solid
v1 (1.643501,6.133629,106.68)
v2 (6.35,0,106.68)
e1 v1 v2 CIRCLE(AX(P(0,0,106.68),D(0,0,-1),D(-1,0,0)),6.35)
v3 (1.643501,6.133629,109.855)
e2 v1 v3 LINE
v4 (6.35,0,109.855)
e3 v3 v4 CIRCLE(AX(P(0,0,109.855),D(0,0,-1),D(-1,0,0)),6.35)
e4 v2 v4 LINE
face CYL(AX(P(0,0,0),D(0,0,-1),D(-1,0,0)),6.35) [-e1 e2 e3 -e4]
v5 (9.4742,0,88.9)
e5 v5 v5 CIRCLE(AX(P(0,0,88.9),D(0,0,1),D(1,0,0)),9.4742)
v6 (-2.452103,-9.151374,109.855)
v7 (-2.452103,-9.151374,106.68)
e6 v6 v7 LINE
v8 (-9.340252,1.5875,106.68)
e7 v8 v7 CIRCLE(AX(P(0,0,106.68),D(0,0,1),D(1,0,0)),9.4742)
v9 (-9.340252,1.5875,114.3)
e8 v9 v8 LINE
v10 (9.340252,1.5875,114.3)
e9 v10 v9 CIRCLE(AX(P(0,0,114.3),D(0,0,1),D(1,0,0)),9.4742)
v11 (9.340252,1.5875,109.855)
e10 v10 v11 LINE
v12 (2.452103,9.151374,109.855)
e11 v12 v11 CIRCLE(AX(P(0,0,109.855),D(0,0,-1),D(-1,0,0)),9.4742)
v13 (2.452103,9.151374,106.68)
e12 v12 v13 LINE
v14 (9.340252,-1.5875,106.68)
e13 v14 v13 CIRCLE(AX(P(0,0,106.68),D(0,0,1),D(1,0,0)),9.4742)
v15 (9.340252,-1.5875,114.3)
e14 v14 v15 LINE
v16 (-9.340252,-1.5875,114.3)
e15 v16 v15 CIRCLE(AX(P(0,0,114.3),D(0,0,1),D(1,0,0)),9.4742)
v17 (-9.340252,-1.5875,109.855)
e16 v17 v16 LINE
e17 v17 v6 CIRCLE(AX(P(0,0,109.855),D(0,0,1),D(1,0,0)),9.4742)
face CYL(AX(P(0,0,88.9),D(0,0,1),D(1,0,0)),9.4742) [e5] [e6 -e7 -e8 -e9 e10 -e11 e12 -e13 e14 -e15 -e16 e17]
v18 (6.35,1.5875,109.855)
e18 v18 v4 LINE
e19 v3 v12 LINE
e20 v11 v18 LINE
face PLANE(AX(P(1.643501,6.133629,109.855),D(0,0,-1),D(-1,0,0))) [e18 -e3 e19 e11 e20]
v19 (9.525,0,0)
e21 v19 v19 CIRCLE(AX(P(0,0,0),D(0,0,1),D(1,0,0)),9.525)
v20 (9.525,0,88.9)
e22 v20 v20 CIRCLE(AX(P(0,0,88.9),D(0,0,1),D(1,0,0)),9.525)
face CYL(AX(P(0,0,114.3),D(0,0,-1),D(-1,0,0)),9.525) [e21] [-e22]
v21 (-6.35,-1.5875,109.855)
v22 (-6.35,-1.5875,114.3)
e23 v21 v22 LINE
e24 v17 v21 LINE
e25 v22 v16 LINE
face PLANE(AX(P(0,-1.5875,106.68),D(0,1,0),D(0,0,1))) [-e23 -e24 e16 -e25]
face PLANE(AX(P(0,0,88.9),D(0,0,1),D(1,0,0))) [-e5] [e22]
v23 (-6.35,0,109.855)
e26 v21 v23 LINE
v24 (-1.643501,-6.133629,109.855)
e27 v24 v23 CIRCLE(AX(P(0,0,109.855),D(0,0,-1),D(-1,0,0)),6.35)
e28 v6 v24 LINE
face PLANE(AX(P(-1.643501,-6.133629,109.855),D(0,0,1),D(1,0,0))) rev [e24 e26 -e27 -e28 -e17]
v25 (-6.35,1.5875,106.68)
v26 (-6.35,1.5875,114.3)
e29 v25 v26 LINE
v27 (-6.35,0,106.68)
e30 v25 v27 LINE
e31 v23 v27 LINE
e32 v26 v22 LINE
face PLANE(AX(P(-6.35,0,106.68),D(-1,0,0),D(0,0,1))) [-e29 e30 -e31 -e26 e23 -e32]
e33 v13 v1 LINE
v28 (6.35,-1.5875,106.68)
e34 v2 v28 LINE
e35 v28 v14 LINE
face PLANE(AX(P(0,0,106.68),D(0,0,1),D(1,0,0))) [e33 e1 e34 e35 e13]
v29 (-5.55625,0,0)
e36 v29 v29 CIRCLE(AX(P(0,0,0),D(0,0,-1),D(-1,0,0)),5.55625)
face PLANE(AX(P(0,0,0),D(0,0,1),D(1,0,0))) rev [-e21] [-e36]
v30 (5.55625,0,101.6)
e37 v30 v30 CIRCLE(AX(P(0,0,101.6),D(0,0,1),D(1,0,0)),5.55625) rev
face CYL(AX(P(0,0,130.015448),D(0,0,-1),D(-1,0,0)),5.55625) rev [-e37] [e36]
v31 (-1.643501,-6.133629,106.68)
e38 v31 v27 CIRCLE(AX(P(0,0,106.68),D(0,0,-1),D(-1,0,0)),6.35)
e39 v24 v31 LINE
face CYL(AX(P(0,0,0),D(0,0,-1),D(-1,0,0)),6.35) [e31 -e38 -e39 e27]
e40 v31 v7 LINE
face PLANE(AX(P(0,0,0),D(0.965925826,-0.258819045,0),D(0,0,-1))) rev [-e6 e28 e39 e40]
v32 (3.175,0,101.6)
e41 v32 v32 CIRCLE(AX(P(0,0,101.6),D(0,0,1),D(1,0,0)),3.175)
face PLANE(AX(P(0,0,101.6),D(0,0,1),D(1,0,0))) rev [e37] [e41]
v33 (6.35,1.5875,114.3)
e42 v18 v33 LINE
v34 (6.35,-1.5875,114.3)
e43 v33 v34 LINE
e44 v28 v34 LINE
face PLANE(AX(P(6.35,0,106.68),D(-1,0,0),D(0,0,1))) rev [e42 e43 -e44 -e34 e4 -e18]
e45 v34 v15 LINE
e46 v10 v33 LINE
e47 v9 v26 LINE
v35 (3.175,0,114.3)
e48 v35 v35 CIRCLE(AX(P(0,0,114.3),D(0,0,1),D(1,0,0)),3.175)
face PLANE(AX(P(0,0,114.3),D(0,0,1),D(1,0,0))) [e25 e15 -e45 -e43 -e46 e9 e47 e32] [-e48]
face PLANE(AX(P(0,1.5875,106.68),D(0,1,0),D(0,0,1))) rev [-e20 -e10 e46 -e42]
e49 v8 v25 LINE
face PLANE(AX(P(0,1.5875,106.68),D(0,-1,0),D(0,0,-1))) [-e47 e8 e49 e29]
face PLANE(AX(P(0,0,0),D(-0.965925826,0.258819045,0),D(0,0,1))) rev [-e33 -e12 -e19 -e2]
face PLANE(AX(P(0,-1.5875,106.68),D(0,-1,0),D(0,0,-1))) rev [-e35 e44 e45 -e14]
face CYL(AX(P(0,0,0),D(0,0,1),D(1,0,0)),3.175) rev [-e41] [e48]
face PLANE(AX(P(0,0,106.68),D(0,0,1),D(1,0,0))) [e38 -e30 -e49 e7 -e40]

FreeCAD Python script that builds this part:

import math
import FreeCAD as App
import Part
import Sketcher
Q = App.Units.Quantity

doc = App.newDocument("Part")
params = doc.addObject("Spreadsheet::Sheet", "Params")
for row, (alias, value) in enumerate([
    ("sketch1_diameter", "0.75 in"),
    ("pad1_length", "4.5 in"),
    ("sketch2_diameter", "0.4375 in"),
    ("pocket1_length", "4 in"),
    ("sketch3_diameter", "0.25 in"),
    ("pocket2_length", "4.5 in"),
    ("sketch4_radius", "0.375 in"),
    ("sketch4_height", "0.125 in"),
    ("pocket3_length", "0.3 in"),
    ("sketch5_width", "0.125 in"),
    ("groove_angle", "75 deg"),
    ("sketch6_diameter", "0.75 in"),
    ("sketch6_diameter2", "0.746 in"),
    ("pocket4_length", "1 in"),
], start=1):
    params.set(f"A{row}", alias)
    params.set(f"B{row}", "=" + value)
    params.setAlias(f"B{row}", alias)

body = doc.addObject("PartDesign::Body", "Body")

sketch1 = doc.addObject("Sketcher::SketchObject", "Sketch")
body.addObject(sketch1)
sketch1.AttachmentSupport = (doc.XY_Plane, [""])
sketch1.MapMode = "FlatFace"
sketch1.addGeometry(Part.Circle(App.Vector(0, 0, 0), App.Vector(0, 0, 1), 10), False)
sketch1.addConstraint(Sketcher.Constraint("Coincident", 0, 3, -1, 1))
sketch1.addConstraint(Sketcher.Constraint("Diameter", 0, Q("0.75 in")))
sketch1.setExpression("Constraints[1]", "Params.sketch1_diameter")
pad1 = doc.addObject("PartDesign::Pad", "Pad")
body.addObject(pad1)
pad1.Profile = sketch1
pad1.setExpression("Length", "Params.pad1_length")

sketch2 = doc.addObject("Sketcher::SketchObject", "Sketch001")
body.addObject(sketch2)
sketch2.AttachmentSupport = (doc.XY_Plane, [""])
sketch2.MapMode = "FlatFace"
sketch2.addGeometry(Part.Circle(App.Vector(0, 0, 0), App.Vector(0, 0, 1), 6), False)
sketch2.addConstraint(Sketcher.Constraint("Coincident", 0, 3, -1, 1))
sketch2.addConstraint(Sketcher.Constraint("Diameter", 0, Q("0.4375 in")))
sketch2.setExpression("Constraints[1]", "Params.sketch2_diameter")
pocket1 = doc.addObject("PartDesign::Pocket", "Pocket")
body.addObject(pocket1)
pocket1.Profile = sketch2
pocket1.setExpression("Length", "Params.pocket1_length")
pocket1.Reversed = True

sketch3 = doc.addObject("Sketcher::SketchObject", "Sketch002")
body.addObject(sketch3)
sketch3.AttachmentSupport = (doc.XY_Plane, [""])
sketch3.MapMode = "FlatFace"
sketch3.AttachmentOffset = App.Placement(App.Vector(0, 0, 4.5 * 25.4), App.Rotation())
sketch3.addGeometry(Part.Circle(App.Vector(0, 0, 0), App.Vector(0, 0, 1), 3.2), False)
sketch3.addConstraint(Sketcher.Constraint("Coincident", 0, 3, -1, 1))
sketch3.addConstraint(Sketcher.Constraint("Diameter", 0, Q("0.25 in")))
sketch3.setExpression("Constraints[1]", "Params.sketch3_diameter")
pocket2 = doc.addObject("PartDesign::Pocket", "Pocket001")
body.addObject(pocket2)
pocket2.Profile = sketch3
pocket2.setExpression("Length", "Params.pocket2_length")

sketch4 = doc.addObject("Sketcher::SketchObject", "Sketch003")
body.addObject(sketch4)
sketch4.AttachmentSupport = (doc.XY_Plane, [""])
sketch4.MapMode = "FlatFace"
sketch4.AttachmentOffset = App.Placement(App.Vector(0, 0, 4.5 * 25.4), App.Rotation())
sketch4.addGeometry(Part.ArcOfCircle(Part.Circle(App.Vector(0, 0, 0), App.Vector(0, 0, 1), 9.5), math.radians(0), math.radians(9.59)), False)
sketch4.addGeometry(Part.LineSegment(App.Vector(9.4, 1.6, 0), App.Vector(6.3, 1.6, 0)), False)
sketch4.addGeometry(Part.LineSegment(App.Vector(6.3, 1.6, 0), App.Vector(6.3, -1.6, 0)), False)
sketch4.addGeometry(Part.LineSegment(App.Vector(6.3, -1.6, 0), App.Vector(9.4, -1.6, 0)), False)
sketch4.addGeometry(Part.ArcOfCircle(Part.Circle(App.Vector(0, 0, 0), App.Vector(0, 0, 1), 9.5), math.radians(-9.59), math.radians(0)), False)
sketch4.addGeometry(Part.LineSegment(App.Vector(-6.3, 1.6, 0), App.Vector(-9.4, 1.6, 0)), False)
sketch4.addGeometry(Part.ArcOfCircle(Part.Circle(App.Vector(0, 0, 0), App.Vector(0, 0, 1), 9.5), math.radians(170.41), math.radians(189.59)), False)
sketch4.addGeometry(Part.LineSegment(App.Vector(-9.4, -1.6, 0), App.Vector(-6.3, -1.6, 0)), False)
sketch4.addGeometry(Part.LineSegment(App.Vector(-6.3, -1.6, 0), App.Vector(-6.3, 1.6, 0)), False)
sketch4.addConstraint(Sketcher.Constraint("Coincident", 0, 2, 1, 1))
sketch4.addConstraint(Sketcher.Constraint("Coincident", 1, 2, 2, 1))
sketch4.addConstraint(Sketcher.Constraint("Coincident", 2, 2, 3, 1))
sketch4.addConstraint(Sketcher.Constraint("Coincident", 3, 2, 4, 1))
sketch4.addConstraint(Sketcher.Constraint("Tangent", 4, 2, 0, 1))
sketch4.addConstraint(Sketcher.Constraint("Coincident", 5, 2, 6, 1))
sketch4.addConstraint(Sketcher.Constraint("Coincident", 6, 2, 7, 1))
sketch4.addConstraint(Sketcher.Constraint("Coincident", 7, 2, 8, 1))
sketch4.addConstraint(Sketcher.Constraint("Coincident", 8, 2, 5, 1))
sketch4.addConstraint(Sketcher.Constraint("Horizontal", 1))
sketch4.addConstraint(Sketcher.Constraint("Vertical", 2))
sketch4.addConstraint(Sketcher.Constraint("Horizontal", 3))
sketch4.addConstraint(Sketcher.Constraint("Horizontal", 5))
sketch4.addConstraint(Sketcher.Constraint("Horizontal", 7))
sketch4.addConstraint(Sketcher.Constraint("Vertical", 8))
sketch4.addConstraint(Sketcher.Constraint("Coincident", 0, 3, -1, 1))
sketch4.addConstraint(Sketcher.Constraint("Coincident", 6, 3, -1, 1))
sketch4.addConstraint(Sketcher.Constraint("Equal", 0, 4))
sketch4.addConstraint(Sketcher.Constraint("Equal", 4, 6))
sketch4.addConstraint(Sketcher.Constraint("Symmetric", 1, 2, 7, 2, -1, 1))
sketch4.addConstraint(Sketcher.Constraint("PointOnObject", 4, 2, -1))
sketch4.addConstraint(Sketcher.Constraint("Horizontal", 1, 2, 5, 2))
sketch4.addConstraint(Sketcher.Constraint("Horizontal", 3, 2, 6, 2))
sketch4.addConstraint(Sketcher.Constraint("Radius", 0, Q("0.375 in")))
sketch4.addConstraint(Sketcher.Constraint("DistanceY", 2, 2, 2, 1, Q("0.125 in")))
sketch4.addConstraint(Sketcher.Constraint("DistanceX", -1, 1, 1, 2, Q("0.25 in")))
sketch4.setExpression("Constraints[23]", "Params.sketch4_radius")
sketch4.setExpression("Constraints[24]", "Params.sketch4_height")
pocket3 = doc.addObject("PartDesign::Pocket", "Pocket002")
body.addObject(pocket3)
pocket3.Profile = sketch4
pocket3.setExpression("Length", "Params.pocket3_length")

sketch5 = doc.addObject("Sketcher::SketchObject", "Sketch004")
body.addObject(sketch5)
sketch5.AttachmentSupport = (doc.XZ_Plane, [""])
sketch5.MapMode = "FlatFace"
sketch5.addGeometry(Part.LineSegment(App.Vector(6.3, 106.7, 0), App.Vector(6.3, 109.9, 0)), False)
sketch5.addGeometry(Part.LineSegment(App.Vector(6.3, 109.9, 0), App.Vector(9.5, 109.9, 0)), False)
sketch5.addGeometry(Part.LineSegment(App.Vector(9.5, 109.9, 0), App.Vector(9.5, 106.7, 0)), False)
sketch5.addGeometry(Part.LineSegment(App.Vector(9.5, 106.7, 0), App.Vector(6.3, 106.7, 0)), False)
sketch5.addGeometry(Part.LineSegment(App.Vector(-9.5, 109.9, 0), App.Vector(-6.3, 109.9, 0)), False)
sketch5.addGeometry(Part.LineSegment(App.Vector(-6.3, 109.9, 0), App.Vector(-6.3, 106.7, 0)), False)
sketch5.addGeometry(Part.LineSegment(App.Vector(-6.3, 106.7, 0), App.Vector(-9.5, 106.7, 0)), False)
sketch5.addGeometry(Part.LineSegment(App.Vector(-9.5, 106.7, 0), App.Vector(-9.5, 109.9, 0)), False)
sketch5.addConstraint(Sketcher.Constraint("Coincident", 0, 2, 1, 1))
sketch5.addConstraint(Sketcher.Constraint("Coincident", 1, 2, 2, 1))
sketch5.addConstraint(Sketcher.Constraint("Coincident", 2, 2, 3, 1))
sketch5.addConstraint(Sketcher.Constraint("Coincident", 3, 2, 0, 1))
sketch5.addConstraint(Sketcher.Constraint("Coincident", 4, 2, 5, 1))
sketch5.addConstraint(Sketcher.Constraint("Coincident", 5, 2, 6, 1))
sketch5.addConstraint(Sketcher.Constraint("Coincident", 6, 2, 7, 1))
sketch5.addConstraint(Sketcher.Constraint("Coincident", 7, 2, 4, 1))
sketch5.addConstraint(Sketcher.Constraint("Vertical", 0))
sketch5.addConstraint(Sketcher.Constraint("Horizontal", 1))
sketch5.addConstraint(Sketcher.Constraint("Vertical", 2))
sketch5.addConstraint(Sketcher.Constraint("Horizontal", 3))
sketch5.addConstraint(Sketcher.Constraint("Horizontal", 4))
sketch5.addConstraint(Sketcher.Constraint("Vertical", 5))
sketch5.addConstraint(Sketcher.Constraint("Horizontal", 6))
sketch5.addConstraint(Sketcher.Constraint("Vertical", 7))
sketch5.addConstraint(Sketcher.Constraint("Symmetric", 0, 2, 4, 2, -2))
sketch5.addConstraint(Sketcher.Constraint("Symmetric", 2, 2, 6, 2, -2))
sketch5.addConstraint(Sketcher.Constraint("Equal", 6, 0))
sketch5.addConstraint(Sketcher.Constraint("DistanceY", -1, 1, 2, 2, Q("4.2 in")))
sketch5.addConstraint(Sketcher.Constraint("DistanceX", 4, 2, 0, 2, Q("0.5 in")))
sketch5.addConstraint(Sketcher.Constraint("DistanceX", 1, 1, 1, 2, Q("0.125 in")))
sketch5.setExpression("Constraints[21]", "Params.sketch5_width")
groove = doc.addObject("PartDesign::Groove", "Groove")
body.addObject(groove)
groove.Profile = sketch5
groove.ReferenceAxis = (sketch5, ["V_Axis"])
groove.setExpression("Angle", "Params.groove_angle")

sketch6 = doc.addObject("Sketcher::SketchObject", "Sketch005")
body.addObject(sketch6)
sketch6.AttachmentSupport = (doc.XY_Plane, [""])
sketch6.MapMode = "FlatFace"
sketch6.AttachmentOffset = App.Placement(App.Vector(0, 0, 4.5 * 25.4), App.Rotation())
sketch6.addGeometry(Part.Circle(App.Vector(0, 0, 0), App.Vector(0, 0, 1), 10), False)
sketch6.addGeometry(Part.Circle(App.Vector(0, 0, 0), App.Vector(0, 0, 1), 9), False)
sketch6.addConstraint(Sketcher.Constraint("Coincident", 0, 3, -1, 1))
sketch6.addConstraint(Sketcher.Constraint("Coincident", 1, 3, -1, 1))
sketch6.addConstraint(Sketcher.Constraint("Diameter", 0, Q("0.75 in")))
sketch6.addConstraint(Sketcher.Constraint("Diameter", 1, Q("0.746 in")))
sketch6.setExpression("Constraints[2]", "Params.sketch6_diameter")
sketch6.setExpression("Constraints[3]", "Params.sketch6_diameter2")
pocket4 = doc.addObject("PartDesign::Pocket", "Pocket003")
body.addObject(pocket4)
pocket4.Profile = sketch6
pocket4.setExpression("Length", "Params.pocket4_length")

doc.recompute()
